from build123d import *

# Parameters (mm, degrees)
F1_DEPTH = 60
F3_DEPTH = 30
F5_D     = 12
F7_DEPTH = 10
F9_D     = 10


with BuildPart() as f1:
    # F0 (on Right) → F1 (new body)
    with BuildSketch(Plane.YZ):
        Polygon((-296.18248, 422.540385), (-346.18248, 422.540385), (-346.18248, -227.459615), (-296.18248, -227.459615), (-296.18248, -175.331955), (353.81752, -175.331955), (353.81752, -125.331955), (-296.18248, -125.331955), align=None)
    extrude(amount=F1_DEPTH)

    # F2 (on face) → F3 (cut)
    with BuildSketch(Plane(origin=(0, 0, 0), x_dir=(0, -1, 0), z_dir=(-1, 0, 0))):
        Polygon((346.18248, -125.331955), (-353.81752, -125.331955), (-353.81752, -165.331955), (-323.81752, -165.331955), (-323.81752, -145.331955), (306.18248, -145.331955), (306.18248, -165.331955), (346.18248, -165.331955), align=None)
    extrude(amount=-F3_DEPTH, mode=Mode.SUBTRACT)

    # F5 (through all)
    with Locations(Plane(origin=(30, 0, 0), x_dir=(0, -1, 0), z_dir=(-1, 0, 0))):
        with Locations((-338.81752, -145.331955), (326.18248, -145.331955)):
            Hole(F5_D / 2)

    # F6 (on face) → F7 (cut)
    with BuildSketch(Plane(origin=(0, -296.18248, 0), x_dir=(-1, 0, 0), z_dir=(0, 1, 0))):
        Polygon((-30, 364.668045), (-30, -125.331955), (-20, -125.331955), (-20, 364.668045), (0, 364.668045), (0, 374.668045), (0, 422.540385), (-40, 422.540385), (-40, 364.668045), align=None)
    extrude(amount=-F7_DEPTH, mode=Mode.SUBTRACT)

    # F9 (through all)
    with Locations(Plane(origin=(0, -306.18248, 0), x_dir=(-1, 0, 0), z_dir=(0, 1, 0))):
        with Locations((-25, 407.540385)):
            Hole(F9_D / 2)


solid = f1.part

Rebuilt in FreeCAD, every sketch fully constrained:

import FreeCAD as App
import Part
import Sketcher

V = App.Vector
Q = App.Units.Quantity


def add_polygon(sketch, points):
    """Adds a closed chain of lines whose ends are joined by coincident constraints."""
    first, n = sketch.GeometryCount, len(points)
    for a, b in zip(points, points[1:] + points[:1]):
        sketch.addGeometry(Part.LineSegment(App.Vector(*a, 0), App.Vector(*b, 0)), False)
    for i in range(n):
        sketch.addConstraint(Sketcher.Constraint("Coincident", first + i, 2, first + (i + 1) % n, 1))

doc = App.newDocument("Part")
params = doc.addObject("Spreadsheet::Sheet", "Params")
for row, (alias, value) in enumerate([
    ("sketch1_width", "50 mm"),
    ("sketch1_width2", "650 mm"),
    ("pad1_length", "60 mm"),
    ("sketch2_width", "700 mm"),
    ("sketch2_width2", "30 mm"),
    ("sketch2_width3", "630 mm"),
    ("sketch2_height", "20 mm"),
    ("pocket1_length", "30 mm"),
    ("sketch3_diameter", "12 mm"),
    ("hole_diameter", "12 mm"),
    ("sketch4_width", "10 mm"),
    ("sketch4_width2", "20 mm"),
    ("sketch4_height", "490 mm"),
    ("pocket2_length", "10 mm"),
    ("sketch5_diameter", "10 mm"),
    ("hole2_diameter", "10 mm"),
], start=1):
    params.set(f"A{row}", alias)
    params.set(f"B{row}", "=" + value)
    params.setAlias(f"B{row}", alias)

body = doc.addObject("PartDesign::Body", "Body")

# Sketch on YZ plane
sketch1 = body.newObject("Sketcher::SketchObject", "Sketch")
sketch1.AttachmentSupport = (doc.getObject("YZ_Plane"), [""])
sketch1.MapMode = "FlatFace"
add_polygon(sketch1, [(-296.18248, 422.540385), (-346.18248, 422.540385), (-346.18248, -227.459615), (-296.18248, -227.459615), (-296.18248, -175.331955), (353.81752, -175.331955), (353.81752, -125.331955), (-296.18248, -125.331955)])  # lines 0-7
sketch1.addConstraint([
    Sketcher.Constraint("Horizontal", 0),
    Sketcher.Constraint("Vertical", 1),
    Sketcher.Constraint("Horizontal", 2),
    Sketcher.Constraint("Vertical", 3),
    Sketcher.Constraint("Horizontal", 4),
    Sketcher.Constraint("Vertical", 5),
    Sketcher.Constraint("Horizontal", 6),
    Sketcher.Constraint("Vertical", 7),
    Sketcher.Constraint("Vertical", 3, 2, 6, 2),
    Sketcher.Constraint("Equal", 6, 1),
    Sketcher.Constraint("Equal", 2, 5),
    Sketcher.Constraint("DistanceX", 0, 2, 0, 1, Q("50 mm")),
    Sketcher.Constraint("DistanceX", 4, 1, 4, 2, Q("650 mm")),
    Sketcher.Constraint("DistanceY", 3, 1, 3, 2, Q("52.12766 mm")),
    Sketcher.Constraint("DistanceX", 0, 2, -1, 1, Q("346.18248 mm")),
    Sketcher.Constraint("DistanceY", -1, 1, 0, 2, Q("422.540385 mm")),
])
sketch1.setExpression("Constraints[19]", "Params.sketch1_width")
sketch1.setExpression("Constraints[20]", "Params.sketch1_width2")
pad1 = body.newObject("PartDesign::Pad", "Pad")
pad1.Profile = sketch1
pad1.setExpression("Length", "Params.pad1_length")

# Sketch on YZ plane
sketch2 = body.newObject("Sketcher::SketchObject", "Sketch001")
sketch2.AttachmentSupport = (doc.getObject("YZ_Plane"), [""])
sketch2.MapMode = "FlatFace"
add_polygon(sketch2, [(-346.18248, -125.331955), (353.81752, -125.331955), (353.81752, -165.331955), (323.81752, -165.331955), (323.81752, -145.331955), (-306.18248, -145.331955), (-306.18248, -165.331955), (-346.18248, -165.331955)])  # lines 0-7
sketch2.addConstraint([
    Sketcher.Constraint("Horizontal", 0),
    Sketcher.Constraint("Vertical", 1),
    Sketcher.Constraint("Horizontal", 2),
    Sketcher.Constraint("Vertical", 3),
    Sketcher.Constraint("Horizontal", 4),
    Sketcher.Constraint("Vertical", 5),
    Sketcher.Constraint("Horizontal", 6),
    Sketcher.Constraint("Vertical", 7),
    Sketcher.Constraint("Horizontal", 2, 2, 5, 2),
    Sketcher.Constraint("Equal", 6, 1),
    Sketcher.Constraint("DistanceX", 0, 1, 0, 2, Q("700 mm")),
    Sketcher.Constraint("DistanceX", 2, 2, 2, 1, Q("30 mm")),
    Sketcher.Constraint("DistanceX", 4, 2, 4, 1, Q("630 mm")),
    Sketcher.Constraint("DistanceY", 3, 1, 3, 2, Q("20 mm")),
    Sketcher.Constraint("DistanceX", -1, 1, 0, 2, Q("353.81752 mm")),
    Sketcher.Constraint("DistanceY", 0, 2, -1, 1, Q("125.331955 mm")),
])
sketch2.setExpression("Constraints[18]", "Params.sketch2_width")
sketch2.setExpression("Constraints[19]", "Params.sketch2_width2")
sketch2.setExpression("Constraints[20]", "Params.sketch2_width3")
sketch2.setExpression("Constraints[21]", "Params.sketch2_height")
pocket1 = body.newObject("PartDesign::Pocket", "Pocket")
pocket1.Profile = sketch2
pocket1.setExpression("Length", "Params.pocket1_length")
pocket1.Reversed = True

# Sketch on YZ plane
sketch3 = body.newObject("Sketcher::SketchObject", "Sketch002")
sketch3.AttachmentSupport = (doc.getObject("YZ_Plane"), [""])
sketch3.MapMode = "FlatFace"
sketch3.AttachmentOffset = App.Placement(V(0, 0, 30), App.Rotation())
sketch3.addGeometry([
    Part.Circle(V(338.81752, -145.331955, 0), V(0, 0, 1), 6),
    Part.Circle(V(-326.18248, -145.331955, 0), V(0, 0, 1), 6),
], False)
sketch3.addConstraint([
    Sketcher.Constraint("Equal", 0, 1),
    Sketcher.Constraint("Horizontal", 0, 3, 1, 3),
    Sketcher.Constraint("Diameter", 0, Q("12 mm")),
    Sketcher.Constraint("DistanceX", 1, 3, 0, 3, Q("665 mm")),
    Sketcher.Constraint("DistanceX", -1, 1, 0, 3, Q("338.81752 mm")),
    Sketcher.Constraint("DistanceY", 0, 3, -1, 1, Q("145.331955 mm")),
])
sketch3.setExpression("Constraints[2]", "Params.sketch3_diameter")
doc.recompute()
hole = body.newObject("PartDesign::Hole", "Hole")
hole.Profile = sketch3
hole.ThreadType = "None"
hole.setExpression("Diameter", "Params.hole_diameter")
hole.DepthType = "ThroughAll"
hole.Reversed = True

# Sketch on XZ plane
sketch4 = body.newObject("Sketcher::SketchObject", "Sketch003")
sketch4.AttachmentSupport = (doc.getObject("XZ_Plane"), [""])
sketch4.MapMode = "FlatFace"
sketch4.AttachmentOffset = App.Placement(V(0, 0, 296.18248), App.Rotation())
add_polygon(sketch4, [(30, 364.668045), (30, -125.331955), (20, -125.331955), (20, 364.668045), (0, 364.668045), (0, 422.540385), (40, 422.540385), (40, 364.668045)])  # lines 0-7
sketch4.addConstraint([
    Sketcher.Constraint("Vertical", 0),
    Sketcher.Constraint("Horizontal", 1),
    Sketcher.Constraint("Vertical", 2),
    Sketcher.Constraint("Horizontal", 3),
    Sketcher.Constraint("Vertical", 4),
    Sketcher.Constraint("Horizontal", 5),
    Sketcher.Constraint("Vertical", 6),
    Sketcher.Constraint("Horizontal", 7),
    Sketcher.Constraint("PointOnObject", 3, 2, -2),
    Sketcher.Constraint("Horizontal", 3, 2, 6, 2),
    Sketcher.Constraint("Equal", 1, 7),
    Sketcher.Constraint("DistanceX", 1, 2, 1, 1, Q("10 mm")),
    Sketcher.Constraint("DistanceX", 3, 2, 3, 1, Q("20 mm")),
    Sketcher.Constraint("DistanceY", 0, 2, 0, 1, Q("490 mm")),
    Sketcher.Constraint("DistanceY", 4, 1, 4, 2, Q("57.87234 mm")),
    Sketcher.Constraint("DistanceY", 0, 2, -1, 1, Q("125.331955 mm")),
])
sketch4.setExpression("Constraints[19]", "Params.sketch4_width")
sketch4.setExpression("Constraints[20]", "Params.sketch4_width2")
sketch4.setExpression("Constraints[21]", "Params.sketch4_height")
pocket2 = body.newObject("PartDesign::Pocket", "Pocket001")
pocket2.Profile = sketch4
pocket2.setExpression("Length", "Params.pocket2_length")
pocket2.Reversed = True

# Sketch on XZ plane
sketch5 = body.newObject("Sketcher::SketchObject", "Sketch004")
sketch5.AttachmentSupport = (doc.getObject("XZ_Plane"), [""])
sketch5.MapMode = "FlatFace"
sketch5.AttachmentOffset = App.Placement(V(0, 0, 306.18248), App.Rotation())
sketch5.addGeometry(Part.Circle(V(25, 407.540385, 0), V(0, 0, 1), 5), False)
sketch5.addConstraint([
    Sketcher.Constraint("Diameter", 0, Q("10 mm")),
    Sketcher.Constraint("DistanceX", -1, 1, 0, 3, Q("25 mm")),
    Sketcher.Constraint("DistanceY", -1, 1, 0, 3, Q("407.540385 mm")),
])
sketch5.setExpression("Constraints[0]", "Params.sketch5_diameter")
doc.recompute()
hole2 = body.newObject("PartDesign::Hole", "Hole001")
hole2.Profile = sketch5
hole2.ThreadType = "None"
hole2.setExpression("Diameter", "Params.hole2_diameter")
hole2.DepthType = "ThroughAll"
hole2.Reversed = True

doc.recompute()
